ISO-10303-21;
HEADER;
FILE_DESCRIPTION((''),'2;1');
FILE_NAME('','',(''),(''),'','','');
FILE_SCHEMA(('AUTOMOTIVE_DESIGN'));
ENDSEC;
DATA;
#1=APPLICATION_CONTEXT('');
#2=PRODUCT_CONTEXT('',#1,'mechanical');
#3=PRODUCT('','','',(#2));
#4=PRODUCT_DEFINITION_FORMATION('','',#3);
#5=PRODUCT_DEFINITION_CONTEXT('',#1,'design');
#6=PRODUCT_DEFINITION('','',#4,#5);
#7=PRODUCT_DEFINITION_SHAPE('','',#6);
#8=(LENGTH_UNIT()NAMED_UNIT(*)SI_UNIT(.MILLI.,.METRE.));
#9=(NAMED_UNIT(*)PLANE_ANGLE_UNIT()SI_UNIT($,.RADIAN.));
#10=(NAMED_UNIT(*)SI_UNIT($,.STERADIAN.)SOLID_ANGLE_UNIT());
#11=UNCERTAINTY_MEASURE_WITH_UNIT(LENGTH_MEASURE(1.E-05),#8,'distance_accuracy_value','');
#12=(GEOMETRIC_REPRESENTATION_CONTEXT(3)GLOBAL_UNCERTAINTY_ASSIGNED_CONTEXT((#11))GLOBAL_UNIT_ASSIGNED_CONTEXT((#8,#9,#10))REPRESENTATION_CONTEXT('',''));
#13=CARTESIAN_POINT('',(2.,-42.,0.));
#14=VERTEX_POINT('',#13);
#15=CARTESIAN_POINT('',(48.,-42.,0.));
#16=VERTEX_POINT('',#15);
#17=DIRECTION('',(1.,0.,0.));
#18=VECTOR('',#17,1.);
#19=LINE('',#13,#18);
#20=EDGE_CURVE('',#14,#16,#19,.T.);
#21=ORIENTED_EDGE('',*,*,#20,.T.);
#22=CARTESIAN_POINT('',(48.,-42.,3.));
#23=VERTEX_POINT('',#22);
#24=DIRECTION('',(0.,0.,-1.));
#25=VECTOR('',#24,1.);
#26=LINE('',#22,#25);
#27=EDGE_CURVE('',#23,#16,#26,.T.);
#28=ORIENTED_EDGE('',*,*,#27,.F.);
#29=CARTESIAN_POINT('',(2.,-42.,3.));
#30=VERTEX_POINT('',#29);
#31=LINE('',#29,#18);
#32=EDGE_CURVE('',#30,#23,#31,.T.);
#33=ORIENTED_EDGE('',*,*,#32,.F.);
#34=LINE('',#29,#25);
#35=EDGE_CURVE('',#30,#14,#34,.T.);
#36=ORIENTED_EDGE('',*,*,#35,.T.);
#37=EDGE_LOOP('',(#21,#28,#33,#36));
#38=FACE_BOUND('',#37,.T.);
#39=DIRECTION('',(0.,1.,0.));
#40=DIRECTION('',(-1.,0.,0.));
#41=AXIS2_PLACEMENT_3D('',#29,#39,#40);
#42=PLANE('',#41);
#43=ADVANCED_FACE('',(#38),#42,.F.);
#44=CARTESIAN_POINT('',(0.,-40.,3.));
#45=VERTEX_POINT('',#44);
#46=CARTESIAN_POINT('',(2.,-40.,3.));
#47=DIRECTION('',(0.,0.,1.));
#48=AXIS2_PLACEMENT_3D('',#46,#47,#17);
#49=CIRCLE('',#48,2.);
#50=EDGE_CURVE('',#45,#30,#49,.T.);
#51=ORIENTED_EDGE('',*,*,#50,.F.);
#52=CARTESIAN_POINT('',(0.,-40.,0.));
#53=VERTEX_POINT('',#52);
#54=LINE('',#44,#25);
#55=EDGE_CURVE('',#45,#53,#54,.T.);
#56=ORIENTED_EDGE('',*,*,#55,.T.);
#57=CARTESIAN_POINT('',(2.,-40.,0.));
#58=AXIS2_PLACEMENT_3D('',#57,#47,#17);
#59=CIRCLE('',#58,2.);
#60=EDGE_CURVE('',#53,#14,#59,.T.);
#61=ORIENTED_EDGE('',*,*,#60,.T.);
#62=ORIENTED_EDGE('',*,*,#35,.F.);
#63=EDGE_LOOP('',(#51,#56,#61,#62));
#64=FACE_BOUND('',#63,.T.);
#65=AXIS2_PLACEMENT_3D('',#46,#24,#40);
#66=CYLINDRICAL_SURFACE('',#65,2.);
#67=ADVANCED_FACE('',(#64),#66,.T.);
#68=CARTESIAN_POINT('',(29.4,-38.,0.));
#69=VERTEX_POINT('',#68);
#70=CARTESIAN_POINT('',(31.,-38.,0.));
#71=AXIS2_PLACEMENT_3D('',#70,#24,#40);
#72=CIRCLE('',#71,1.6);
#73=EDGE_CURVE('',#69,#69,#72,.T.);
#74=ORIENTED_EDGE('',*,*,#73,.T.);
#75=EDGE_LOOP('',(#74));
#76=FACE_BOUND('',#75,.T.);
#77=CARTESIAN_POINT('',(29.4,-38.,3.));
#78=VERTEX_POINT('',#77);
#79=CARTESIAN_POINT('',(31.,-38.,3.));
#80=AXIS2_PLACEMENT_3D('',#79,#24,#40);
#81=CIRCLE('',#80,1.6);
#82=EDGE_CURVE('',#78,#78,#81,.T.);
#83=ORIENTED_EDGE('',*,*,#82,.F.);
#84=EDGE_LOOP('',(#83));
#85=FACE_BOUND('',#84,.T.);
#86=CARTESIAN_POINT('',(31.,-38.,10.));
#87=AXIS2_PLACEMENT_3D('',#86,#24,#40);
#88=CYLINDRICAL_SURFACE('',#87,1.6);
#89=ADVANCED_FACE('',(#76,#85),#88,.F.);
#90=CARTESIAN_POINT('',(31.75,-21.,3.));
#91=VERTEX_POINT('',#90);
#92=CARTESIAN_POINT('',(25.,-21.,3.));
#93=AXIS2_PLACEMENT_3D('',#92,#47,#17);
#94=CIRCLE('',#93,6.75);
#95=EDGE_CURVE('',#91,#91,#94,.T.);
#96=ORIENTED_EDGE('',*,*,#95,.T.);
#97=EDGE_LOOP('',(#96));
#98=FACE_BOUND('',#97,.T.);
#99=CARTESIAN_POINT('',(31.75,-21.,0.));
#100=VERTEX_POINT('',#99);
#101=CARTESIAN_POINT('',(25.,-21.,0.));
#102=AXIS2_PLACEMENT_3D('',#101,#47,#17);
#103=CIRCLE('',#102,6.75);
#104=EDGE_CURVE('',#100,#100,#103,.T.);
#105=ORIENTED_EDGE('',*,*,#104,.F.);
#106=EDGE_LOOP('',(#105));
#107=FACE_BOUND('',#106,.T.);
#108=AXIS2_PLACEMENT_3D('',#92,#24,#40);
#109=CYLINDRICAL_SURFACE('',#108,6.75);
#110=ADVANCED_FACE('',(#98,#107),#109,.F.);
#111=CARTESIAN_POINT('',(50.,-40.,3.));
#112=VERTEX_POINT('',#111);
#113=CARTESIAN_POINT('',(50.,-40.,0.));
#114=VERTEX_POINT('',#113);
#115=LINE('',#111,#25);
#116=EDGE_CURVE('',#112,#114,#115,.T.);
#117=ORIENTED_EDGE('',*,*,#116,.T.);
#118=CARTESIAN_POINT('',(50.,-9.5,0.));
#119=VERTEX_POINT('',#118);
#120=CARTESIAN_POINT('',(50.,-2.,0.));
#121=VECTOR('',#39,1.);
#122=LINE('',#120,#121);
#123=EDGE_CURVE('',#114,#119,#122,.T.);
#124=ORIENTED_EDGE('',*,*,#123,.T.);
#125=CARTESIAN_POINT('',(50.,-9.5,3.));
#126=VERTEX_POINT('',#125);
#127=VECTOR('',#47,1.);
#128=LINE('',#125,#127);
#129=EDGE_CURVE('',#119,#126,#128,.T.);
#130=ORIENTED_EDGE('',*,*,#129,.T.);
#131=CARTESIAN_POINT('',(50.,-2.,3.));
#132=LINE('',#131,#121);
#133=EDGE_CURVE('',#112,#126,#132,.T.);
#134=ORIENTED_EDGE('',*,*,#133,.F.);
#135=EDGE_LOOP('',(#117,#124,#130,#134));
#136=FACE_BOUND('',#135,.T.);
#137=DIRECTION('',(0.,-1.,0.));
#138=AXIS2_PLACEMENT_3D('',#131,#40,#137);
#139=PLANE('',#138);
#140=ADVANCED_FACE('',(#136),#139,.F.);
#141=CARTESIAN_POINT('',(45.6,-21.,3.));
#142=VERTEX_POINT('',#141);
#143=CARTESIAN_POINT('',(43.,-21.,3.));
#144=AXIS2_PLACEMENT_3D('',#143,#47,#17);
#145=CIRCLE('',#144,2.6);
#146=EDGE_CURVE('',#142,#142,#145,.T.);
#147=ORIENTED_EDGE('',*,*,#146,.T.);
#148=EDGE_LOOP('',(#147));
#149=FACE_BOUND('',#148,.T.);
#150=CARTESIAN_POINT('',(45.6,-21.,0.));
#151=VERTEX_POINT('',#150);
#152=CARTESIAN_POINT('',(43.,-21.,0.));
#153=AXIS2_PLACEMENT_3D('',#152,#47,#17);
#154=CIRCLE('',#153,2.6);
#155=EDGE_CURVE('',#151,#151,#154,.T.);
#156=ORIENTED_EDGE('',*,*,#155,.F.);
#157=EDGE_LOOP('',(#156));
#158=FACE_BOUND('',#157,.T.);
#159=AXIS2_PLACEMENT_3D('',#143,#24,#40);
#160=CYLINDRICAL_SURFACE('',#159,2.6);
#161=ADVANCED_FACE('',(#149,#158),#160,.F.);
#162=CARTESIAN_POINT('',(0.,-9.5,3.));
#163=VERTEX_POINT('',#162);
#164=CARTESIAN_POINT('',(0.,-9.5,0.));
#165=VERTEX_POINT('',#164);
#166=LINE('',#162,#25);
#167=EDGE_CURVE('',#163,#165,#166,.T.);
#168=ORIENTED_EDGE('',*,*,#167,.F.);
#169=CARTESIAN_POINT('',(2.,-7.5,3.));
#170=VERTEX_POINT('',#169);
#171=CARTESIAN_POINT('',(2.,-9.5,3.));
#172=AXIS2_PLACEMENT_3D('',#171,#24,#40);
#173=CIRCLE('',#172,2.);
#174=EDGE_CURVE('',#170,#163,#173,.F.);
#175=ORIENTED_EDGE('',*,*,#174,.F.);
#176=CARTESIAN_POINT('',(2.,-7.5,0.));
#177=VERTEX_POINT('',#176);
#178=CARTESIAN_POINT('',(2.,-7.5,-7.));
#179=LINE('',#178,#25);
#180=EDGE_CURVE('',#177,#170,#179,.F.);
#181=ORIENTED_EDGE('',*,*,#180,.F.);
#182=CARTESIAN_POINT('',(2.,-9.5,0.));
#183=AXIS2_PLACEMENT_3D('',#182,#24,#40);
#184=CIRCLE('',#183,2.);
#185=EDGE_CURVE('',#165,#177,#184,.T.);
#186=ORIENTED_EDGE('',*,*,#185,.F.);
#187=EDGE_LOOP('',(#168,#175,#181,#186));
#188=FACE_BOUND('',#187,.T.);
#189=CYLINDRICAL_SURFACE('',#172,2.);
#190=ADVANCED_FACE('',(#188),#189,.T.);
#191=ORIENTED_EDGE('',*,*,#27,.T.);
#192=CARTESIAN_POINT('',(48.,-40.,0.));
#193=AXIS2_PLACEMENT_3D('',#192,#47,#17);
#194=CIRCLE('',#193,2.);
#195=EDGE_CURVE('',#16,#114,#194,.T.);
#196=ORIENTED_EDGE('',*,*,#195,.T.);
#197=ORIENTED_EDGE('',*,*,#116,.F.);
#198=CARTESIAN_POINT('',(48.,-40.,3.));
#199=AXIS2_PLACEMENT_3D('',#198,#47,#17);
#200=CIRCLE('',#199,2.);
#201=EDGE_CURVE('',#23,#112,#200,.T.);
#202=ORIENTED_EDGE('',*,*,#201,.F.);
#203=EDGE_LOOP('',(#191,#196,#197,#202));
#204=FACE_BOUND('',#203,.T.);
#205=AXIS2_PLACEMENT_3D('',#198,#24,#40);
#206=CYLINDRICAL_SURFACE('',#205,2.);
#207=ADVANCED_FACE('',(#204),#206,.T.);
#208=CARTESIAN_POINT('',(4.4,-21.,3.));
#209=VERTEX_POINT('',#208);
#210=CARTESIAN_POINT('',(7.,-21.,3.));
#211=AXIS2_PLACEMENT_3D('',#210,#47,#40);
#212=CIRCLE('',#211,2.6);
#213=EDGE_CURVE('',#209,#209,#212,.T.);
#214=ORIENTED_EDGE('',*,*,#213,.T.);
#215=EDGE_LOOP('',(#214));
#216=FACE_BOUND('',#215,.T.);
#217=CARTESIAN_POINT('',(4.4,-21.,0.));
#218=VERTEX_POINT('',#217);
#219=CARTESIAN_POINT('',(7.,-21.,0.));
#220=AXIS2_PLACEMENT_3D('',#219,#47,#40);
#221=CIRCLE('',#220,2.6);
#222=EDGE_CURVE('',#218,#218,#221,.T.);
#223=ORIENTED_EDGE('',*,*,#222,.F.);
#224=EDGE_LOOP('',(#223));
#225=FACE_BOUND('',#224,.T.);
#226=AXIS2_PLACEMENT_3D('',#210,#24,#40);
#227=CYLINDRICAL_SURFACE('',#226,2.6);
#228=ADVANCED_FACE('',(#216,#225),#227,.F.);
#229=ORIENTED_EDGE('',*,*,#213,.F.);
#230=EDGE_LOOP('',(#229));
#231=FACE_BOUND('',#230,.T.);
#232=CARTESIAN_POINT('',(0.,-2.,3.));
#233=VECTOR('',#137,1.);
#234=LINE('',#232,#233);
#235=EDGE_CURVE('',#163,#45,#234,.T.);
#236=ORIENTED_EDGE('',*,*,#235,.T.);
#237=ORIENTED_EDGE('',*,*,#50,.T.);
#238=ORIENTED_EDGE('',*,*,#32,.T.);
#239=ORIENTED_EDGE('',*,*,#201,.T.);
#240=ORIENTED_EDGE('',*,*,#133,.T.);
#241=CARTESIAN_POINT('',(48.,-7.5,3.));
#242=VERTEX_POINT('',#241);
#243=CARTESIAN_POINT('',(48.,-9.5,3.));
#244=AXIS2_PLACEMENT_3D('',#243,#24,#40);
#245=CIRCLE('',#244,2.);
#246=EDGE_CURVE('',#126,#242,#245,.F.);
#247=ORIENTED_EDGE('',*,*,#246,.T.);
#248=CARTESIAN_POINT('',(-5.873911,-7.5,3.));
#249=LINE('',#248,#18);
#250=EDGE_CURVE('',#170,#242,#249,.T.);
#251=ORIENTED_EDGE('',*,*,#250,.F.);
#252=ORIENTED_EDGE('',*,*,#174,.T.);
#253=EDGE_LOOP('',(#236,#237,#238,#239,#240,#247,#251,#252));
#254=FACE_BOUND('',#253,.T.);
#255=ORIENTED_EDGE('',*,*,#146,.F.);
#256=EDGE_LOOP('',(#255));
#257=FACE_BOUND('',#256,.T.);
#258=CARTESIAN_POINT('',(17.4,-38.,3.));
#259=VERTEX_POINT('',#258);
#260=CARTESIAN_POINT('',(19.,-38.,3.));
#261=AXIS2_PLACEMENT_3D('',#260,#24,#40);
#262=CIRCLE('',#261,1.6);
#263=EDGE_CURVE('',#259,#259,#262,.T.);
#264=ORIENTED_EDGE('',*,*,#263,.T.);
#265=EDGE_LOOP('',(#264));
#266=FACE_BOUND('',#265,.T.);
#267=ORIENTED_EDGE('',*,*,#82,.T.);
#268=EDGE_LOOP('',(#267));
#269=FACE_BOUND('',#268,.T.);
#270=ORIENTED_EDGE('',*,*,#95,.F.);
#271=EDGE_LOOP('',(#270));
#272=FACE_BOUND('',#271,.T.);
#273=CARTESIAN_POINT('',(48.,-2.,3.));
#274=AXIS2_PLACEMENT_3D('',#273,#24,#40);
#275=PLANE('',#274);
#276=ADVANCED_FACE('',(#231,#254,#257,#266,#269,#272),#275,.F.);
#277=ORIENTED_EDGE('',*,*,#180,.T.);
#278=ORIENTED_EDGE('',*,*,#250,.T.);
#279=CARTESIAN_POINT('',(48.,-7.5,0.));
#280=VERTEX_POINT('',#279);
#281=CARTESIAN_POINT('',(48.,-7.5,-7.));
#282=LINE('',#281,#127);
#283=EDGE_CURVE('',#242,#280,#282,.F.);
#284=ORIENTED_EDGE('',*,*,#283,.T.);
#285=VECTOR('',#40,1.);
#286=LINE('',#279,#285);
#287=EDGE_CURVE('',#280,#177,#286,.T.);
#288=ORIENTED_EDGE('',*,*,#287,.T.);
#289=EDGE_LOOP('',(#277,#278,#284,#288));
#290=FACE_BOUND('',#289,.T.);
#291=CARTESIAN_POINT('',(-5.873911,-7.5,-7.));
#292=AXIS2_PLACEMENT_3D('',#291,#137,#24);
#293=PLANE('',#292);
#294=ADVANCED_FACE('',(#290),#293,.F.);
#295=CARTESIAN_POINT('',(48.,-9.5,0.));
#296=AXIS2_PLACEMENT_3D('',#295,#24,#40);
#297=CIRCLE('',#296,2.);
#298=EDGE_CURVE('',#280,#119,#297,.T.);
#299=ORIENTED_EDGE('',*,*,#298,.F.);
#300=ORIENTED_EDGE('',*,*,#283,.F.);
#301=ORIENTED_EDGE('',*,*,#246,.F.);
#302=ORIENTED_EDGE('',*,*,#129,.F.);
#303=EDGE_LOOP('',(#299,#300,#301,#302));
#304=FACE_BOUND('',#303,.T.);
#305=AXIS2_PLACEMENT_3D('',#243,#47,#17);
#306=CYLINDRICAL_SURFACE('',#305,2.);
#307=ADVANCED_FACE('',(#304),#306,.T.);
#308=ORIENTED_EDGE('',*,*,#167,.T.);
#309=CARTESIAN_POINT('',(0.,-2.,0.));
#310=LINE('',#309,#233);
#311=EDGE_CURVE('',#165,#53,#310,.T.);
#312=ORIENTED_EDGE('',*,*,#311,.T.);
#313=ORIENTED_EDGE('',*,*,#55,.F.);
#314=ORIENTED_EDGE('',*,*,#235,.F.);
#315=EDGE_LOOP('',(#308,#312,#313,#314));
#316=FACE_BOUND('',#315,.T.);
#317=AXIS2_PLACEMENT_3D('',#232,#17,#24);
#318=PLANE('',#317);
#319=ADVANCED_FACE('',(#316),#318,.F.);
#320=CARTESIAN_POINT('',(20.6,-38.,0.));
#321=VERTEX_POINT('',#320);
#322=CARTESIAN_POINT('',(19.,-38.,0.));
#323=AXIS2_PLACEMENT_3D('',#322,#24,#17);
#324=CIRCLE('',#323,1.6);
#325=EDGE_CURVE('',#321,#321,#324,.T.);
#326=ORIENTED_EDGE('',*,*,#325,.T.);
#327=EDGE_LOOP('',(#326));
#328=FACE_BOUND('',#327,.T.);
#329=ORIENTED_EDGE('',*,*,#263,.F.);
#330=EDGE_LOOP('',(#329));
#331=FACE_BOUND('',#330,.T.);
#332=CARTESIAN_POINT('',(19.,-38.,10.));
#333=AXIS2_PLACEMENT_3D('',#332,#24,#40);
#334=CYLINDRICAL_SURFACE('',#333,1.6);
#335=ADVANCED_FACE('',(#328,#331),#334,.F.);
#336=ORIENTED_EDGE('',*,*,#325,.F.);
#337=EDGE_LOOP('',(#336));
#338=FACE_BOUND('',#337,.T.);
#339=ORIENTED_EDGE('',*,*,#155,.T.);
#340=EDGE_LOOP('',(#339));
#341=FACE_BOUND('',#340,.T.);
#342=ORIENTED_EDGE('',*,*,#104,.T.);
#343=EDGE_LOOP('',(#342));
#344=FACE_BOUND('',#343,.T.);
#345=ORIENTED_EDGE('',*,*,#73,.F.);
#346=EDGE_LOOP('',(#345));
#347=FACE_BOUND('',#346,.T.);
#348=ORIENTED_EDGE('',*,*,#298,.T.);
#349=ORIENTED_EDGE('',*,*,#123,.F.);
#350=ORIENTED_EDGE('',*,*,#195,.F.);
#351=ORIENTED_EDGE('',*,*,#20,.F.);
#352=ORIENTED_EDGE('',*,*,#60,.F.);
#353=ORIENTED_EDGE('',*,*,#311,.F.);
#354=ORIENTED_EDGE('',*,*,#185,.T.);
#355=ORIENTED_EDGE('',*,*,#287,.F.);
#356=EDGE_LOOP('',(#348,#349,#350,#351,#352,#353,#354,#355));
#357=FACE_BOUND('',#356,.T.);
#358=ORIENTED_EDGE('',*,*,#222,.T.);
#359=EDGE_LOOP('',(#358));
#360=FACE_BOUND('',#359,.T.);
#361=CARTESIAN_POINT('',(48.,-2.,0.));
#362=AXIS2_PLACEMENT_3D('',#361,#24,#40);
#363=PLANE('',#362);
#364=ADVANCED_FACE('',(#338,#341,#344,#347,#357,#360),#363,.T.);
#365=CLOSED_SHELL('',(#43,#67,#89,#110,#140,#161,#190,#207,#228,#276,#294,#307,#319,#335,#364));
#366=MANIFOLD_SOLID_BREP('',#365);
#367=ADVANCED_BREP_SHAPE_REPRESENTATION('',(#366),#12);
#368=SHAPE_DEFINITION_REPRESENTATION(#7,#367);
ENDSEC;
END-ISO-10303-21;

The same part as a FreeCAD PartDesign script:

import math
import FreeCAD as App
import Part
import Sketcher
Q = App.Units.Quantity


def edges_at(feature, points):
    """Names of the edges that pass closest to the given points."""
    edges = feature.Shape.Edges
    near = lambda p: min(range(len(edges)), key=lambda i: edges[i].distToShape(Part.Vertex(*p))[0])
    return sorted({f"Edge{near(p) + 1}" for p in points})

doc = App.newDocument("Part")
params = doc.addObject("Spreadsheet::Sheet", "Params")
for row, (alias, value) in enumerate([
    ("sketch1_radius", "2 mm"),
    ("sketch1_diameter", "5.2 mm"),
    ("sketch1_diameter2", "13.5 mm"),
    ("sketch1_width", "46 mm"),
    ("sketch1_height", "38 mm"),
    ("pad1_length", "3 mm"),
    ("sketch2_diameter", "3.2 mm"),
    ("pocket1_length", "10 mm"),
    ("pocket2_length", "10 mm"),
    ("fillet_radius", "2 mm"),
], start=1):
    params.set(f"A{row}", alias)
    params.set(f"B{row}", "=" + value)
    params.setAlias(f"B{row}", alias)

body = doc.addObject("PartDesign::Body", "Body")

sketch1 = doc.addObject("Sketcher::SketchObject", "Sketch")
body.addObject(sketch1)
sketch1.AttachmentSupport = (doc.XY_Plane, [""])
sketch1.MapMode = "FlatFace"
sketch1.addGeometry([
    Part.LineSegment(App.Vector(48, 0, 0), App.Vector(2, 0, 0)),
    Part.ArcOfCircle(Part.Circle(App.Vector(2, -2, 0), App.Vector(0, 0, 1), 2), math.radians(90), math.radians(180)),
    Part.LineSegment(App.Vector(0, -2, 0), App.Vector(0, -40, 0)),
    Part.ArcOfCircle(Part.Circle(App.Vector(2, -40, 0), App.Vector(0, 0, 1), 2), math.radians(-180), math.radians(-90)),
    Part.LineSegment(App.Vector(2, -42, 0), App.Vector(48, -42, 0)),
    Part.ArcOfCircle(Part.Circle(App.Vector(48, -40, 0), App.Vector(0, 0, 1), 2), math.radians(-90), math.radians(0)),
    Part.LineSegment(App.Vector(50, -40, 0), App.Vector(50, -2, 0)),
    Part.ArcOfCircle(Part.Circle(App.Vector(48, -2, 0), App.Vector(0, 0, 1), 2), math.radians(0), math.radians(90)),
    Part.Circle(App.Vector(43, -21, 0), App.Vector(0, 0, 1), 2.6),
    Part.Circle(App.Vector(25, -21, 0), App.Vector(0, 0, 1), 6.75),
    Part.Circle(App.Vector(7, -21, 0), App.Vector(0, 0, 1), 2.6),
], False)
sketch1.addConstraint([
    Sketcher.Constraint("Tangent", 0, 2, 1, 1),
    Sketcher.Constraint("Tangent", 1, 2, 2, 1),
    Sketcher.Constraint("Tangent", 2, 2, 3, 1),
    Sketcher.Constraint("Tangent", 3, 2, 4, 1),
    Sketcher.Constraint("Tangent", 4, 2, 5, 1),
    Sketcher.Constraint("Tangent", 5, 2, 6, 1),
    Sketcher.Constraint("Tangent", 6, 2, 7, 1),
    Sketcher.Constraint("Tangent", 7, 2, 0, 1),
    Sketcher.Constraint("Horizontal", 0),
    Sketcher.Constraint("Vertical", 2),
    Sketcher.Constraint("Horizontal", 4),
    Sketcher.Constraint("Vertical", 6),
    Sketcher.Constraint("Equal", 1, 3),
    Sketcher.Constraint("Equal", 3, 5),
    Sketcher.Constraint("Equal", 5, 7),
    Sketcher.Constraint("Equal", 8, 10),
    Sketcher.Constraint("PointOnObject", 0, 2, -1),
    Sketcher.Constraint("PointOnObject", 1, 2, -2),
    Sketcher.Constraint("Horizontal", 8, 3, 9, 3),
    Sketcher.Constraint("Horizontal", 9, 3, 10, 3),
    Sketcher.Constraint("Radius", 1, Q("2 mm")),
    Sketcher.Constraint("Diameter", 8, Q("5.2 mm")),
    Sketcher.Constraint("Diameter", 9, Q("13.5 mm")),
    Sketcher.Constraint("DistanceX", 0, 2, 0, 1, Q("46 mm")),
    Sketcher.Constraint("DistanceY", 2, 2, 2, 1, Q("38 mm")),
    Sketcher.Constraint("DistanceX", -1, 1, 8, 3, Q("43 mm")),
    Sketcher.Constraint("DistanceY", 8, 3, -1, 1, Q("21 mm")),
    Sketcher.Constraint("DistanceX", -1, 1, 9, 3, Q("25 mm")),
    Sketcher.Constraint("DistanceX", -1, 1, 10, 3, Q("7 mm")),
])
sketch1.setExpression("Constraints[20]", "Params.sketch1_radius")
sketch1.setExpression("Constraints[21]", "Params.sketch1_diameter")
sketch1.setExpression("Constraints[22]", "Params.sketch1_diameter2")
sketch1.setExpression("Constraints[23]", "Params.sketch1_width")
sketch1.setExpression("Constraints[24]", "Params.sketch1_height")
pad1 = doc.addObject("PartDesign::Pad", "Pad")
body.addObject(pad1)
pad1.Profile = sketch1
pad1.setExpression("Length", "Params.pad1_length")

sketch2 = doc.addObject("Sketcher::SketchObject", "Sketch001")
body.addObject(sketch2)
sketch2.AttachmentSupport = (doc.XY_Plane, [""])
sketch2.MapMode = "FlatFace"
sketch2.addGeometry([
    Part.Circle(App.Vector(19, -38, 0), App.Vector(0, 0, 1), 1.6),
    Part.Circle(App.Vector(31, -38, 0), App.Vector(0, 0, 1), 1.6),
], False)
sketch2.addConstraint([
    Sketcher.Constraint("Equal", 0, 1),
    Sketcher.Constraint("Horizontal", 0, 3, 1, 3),
    Sketcher.Constraint("Diameter", 0, Q("3.2 mm")),
    Sketcher.Constraint("DistanceX", -1, 1, 0, 3, Q("19 mm")),
    Sketcher.Constraint("DistanceY", 0, 3, -1, 1, Q("38 mm")),
    Sketcher.Constraint("DistanceX", -1, 1, 1, 3, Q("31 mm")),
])
sketch2.setExpression("Constraints[2]", "Params.sketch2_diameter")
pocket1 = doc.addObject("PartDesign::Pocket", "Pocket")
body.addObject(pocket1)
pocket1.Profile = sketch2
pocket1.setExpression("Length", "Params.pocket1_length")
pocket1.Reversed = True

sketch3 = doc.addObject("Sketcher::SketchObject", "Sketch002")
body.addObject(sketch3)
sketch3.AttachmentSupport = (doc.XY_Plane, [""])
sketch3.MapMode = "FlatFace"
sketch3.AttachmentOffset = App.Placement(App.Vector(0, 0, 3), App.Rotation())
sketch3.addGeometry([
    Part.LineSegment(App.Vector(-5.873911, 10.316534, 0), App.Vector(-5.873911, -7.5, 0)),
    Part.LineSegment(App.Vector(-5.873911, -7.5, 0), App.Vector(53.483764, -7.5, 0)),
    Part.LineSegment(App.Vector(53.483764, -7.5, 0), App.Vector(53.483764, 10.316534, 0)),
    Part.LineSegment(App.Vector(53.483764, 10.316534, 0), App.Vector(-5.873911, 10.316534, 0)),
], False)
sketch3.addConstraint([
    Sketcher.Constraint("Coincident", 0, 2, 1, 1),
    Sketcher.Constraint("Coincident", 1, 2, 2, 1),
    Sketcher.Constraint("Coincident", 2, 2, 3, 1),
    Sketcher.Constraint("Coincident", 3, 2, 0, 1),
    Sketcher.Constraint("Vertical", 0),
    Sketcher.Constraint("Horizontal", 1),
    Sketcher.Constraint("Vertical", 2),
    Sketcher.Constraint("Horizontal", 3),
    Sketcher.Constraint("DistanceY", 0, 2, -1, 1, Q("7.5 mm")),
    Sketcher.Constraint("DistanceX", 1, 1, 1, 2, Q("59.357675 mm")),
    Sketcher.Constraint("DistanceY", 0, 2, 0, 1, Q("17.816534 mm")),
    Sketcher.Constraint("DistanceX", 0, 2, -1, 1, Q("5.873911 mm")),
])
pocket2 = doc.addObject("PartDesign::Pocket", "Pocket001")
body.addObject(pocket2)
pocket2.Profile = sketch3
pocket2.setExpression("Length", "Params.pocket2_length")
doc.recompute()

fillet = doc.addObject("PartDesign::Fillet", "Fillet")
body.addObject(fillet)
fillet.Base = (pocket2, edges_at(pocket2, [(50, -7.5, 1.5), (0, -7.5, 1.5)]))
fillet.setExpression("Radius", "Params.fillet_radius")

doc.recompute()
